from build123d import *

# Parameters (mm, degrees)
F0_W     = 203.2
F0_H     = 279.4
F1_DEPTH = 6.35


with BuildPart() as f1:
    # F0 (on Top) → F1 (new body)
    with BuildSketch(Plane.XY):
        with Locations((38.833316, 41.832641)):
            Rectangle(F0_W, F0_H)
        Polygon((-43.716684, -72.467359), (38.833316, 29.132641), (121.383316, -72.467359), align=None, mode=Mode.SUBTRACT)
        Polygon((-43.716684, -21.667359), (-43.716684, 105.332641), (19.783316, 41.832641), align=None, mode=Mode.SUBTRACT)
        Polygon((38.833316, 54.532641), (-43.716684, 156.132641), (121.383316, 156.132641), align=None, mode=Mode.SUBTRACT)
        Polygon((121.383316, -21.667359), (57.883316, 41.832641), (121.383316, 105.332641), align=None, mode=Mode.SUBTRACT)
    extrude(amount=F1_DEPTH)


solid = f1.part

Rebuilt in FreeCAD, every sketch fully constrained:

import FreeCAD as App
import Part
import Sketcher

V = App.Vector
Q = App.Units.Quantity

doc = App.newDocument("Part")
body = doc.addObject("PartDesign::Body", "Body")

# Sketch on XY plane
sketch1 = doc.addObject("Sketcher::SketchObject", "Sketch")
body.addObject(sketch1)
sketch1.AttachmentSupport = (doc.XY_Plane, [""])
sketch1.MapMode = "FlatFace"
sketch1.addGeometry([
    Part.LineSegment(V(-63, 182, 0), V(-63, -98, 0)),  # 0
    Part.LineSegment(V(-63, -98, 0), V(140, -98, 0)),  # 1
    Part.LineSegment(V(140, -98, 0), V(140, 182, 0)),  # 2
    Part.LineSegment(V(140, 182, 0), V(-63, 182, 0)),  # 3
    Part.LineSegment(V(121, -72, 0), V(-44, -72, 0)),  # 4
    Part.LineSegment(V(-44, -72, 0), V(39, 29, 0)),  # 5
    Part.LineSegment(V(39, 29, 0), V(121, -72, 0)),  # 6
    Part.LineSegment(V(20, 42, 0), V(-44, -22, 0)),  # 7
    Part.LineSegment(V(-44, -22, 0), V(-44, 105, 0)),  # 8
    Part.LineSegment(V(-44, 105, 0), V(20, 42, 0)),  # 9
    Part.LineSegment(V(121, 105, 0), V(121, -22, 0)),  # 10
    Part.LineSegment(V(121, -22, 0), V(58, 42, 0)),  # 11
    Part.LineSegment(V(58, 42, 0), V(121, 105, 0)),  # 12
    Part.LineSegment(V(121, 156, 0), V(39, 55, 0)),  # 13
    Part.LineSegment(V(39, 55, 0), V(-44, 156, 0)),  # 14
    Part.LineSegment(V(-44, 156, 0), V(121, 156, 0)),  # 15
], False)
sketch1.addConstraint([
    Sketcher.Constraint("Coincident", 0, 2, 1, 1),
    Sketcher.Constraint("Coincident", 1, 2, 2, 1),
    Sketcher.Constraint("Coincident", 2, 2, 3, 1),
    Sketcher.Constraint("Coincident", 3, 2, 0, 1),
    Sketcher.Constraint("Coincident", 4, 2, 5, 1),
    Sketcher.Constraint("Coincident", 5, 2, 6, 1),
    Sketcher.Constraint("Coincident", 6, 2, 4, 1),
    Sketcher.Constraint("Coincident", 7, 2, 8, 1),
    Sketcher.Constraint("Coincident", 8, 2, 9, 1),
    Sketcher.Constraint("Coincident", 9, 2, 7, 1),
    Sketcher.Constraint("Coincident", 10, 2, 11, 1),
    Sketcher.Constraint("Coincident", 11, 2, 12, 1),
    Sketcher.Constraint("Coincident", 12, 2, 10, 1),
    Sketcher.Constraint("Coincident", 13, 2, 14, 1),
    Sketcher.Constraint("Coincident", 14, 2, 15, 1),
    Sketcher.Constraint("Coincident", 15, 2, 13, 1),
    Sketcher.Constraint("Vertical", 0),
    Sketcher.Constraint("Horizontal", 1),
    Sketcher.Constraint("Vertical", 2),
    Sketcher.Constraint("Horizontal", 3),
    Sketcher.Constraint("Horizontal", 4),
    Sketcher.Constraint("Vertical", 8),
    Sketcher.Constraint("Vertical", 10),
    Sketcher.Constraint("Horizontal", 15),
    Sketcher.Constraint("Perpendicular", 7, 9),
    Sketcher.Constraint("Parallel", 9, 11),
    Sketcher.Constraint("Perpendicular", 11, 12),
    Sketcher.Constraint("Parallel", 5, 13),
    Sketcher.Constraint("Parallel", 6, 14),
    Sketcher.Constraint("Horizontal", 7, 2, 10, 2),
    Sketcher.Constraint("Horizontal", 9, 2, 11, 2),
    Sketcher.Constraint("Horizontal", 8, 2, 12, 2),
    Sketcher.Constraint("Vertical", 4, 2, 7, 2),
    Sketcher.Constraint("Vertical", 6, 2, 10, 2),
    Sketcher.Constraint("Vertical", 5, 2, 13, 2),
    Sketcher.Constraint("Vertical", 8, 2, 14, 2),
    Sketcher.Constraint("Vertical", 12, 2, 15, 2),
    Sketcher.Constraint("DistanceX", 1, 1, 1, 2, Q("8 in")),
    Sketcher.Constraint("DistanceY", 0, 2, 0, 1, Q("11 in")),
    Sketcher.Constraint("DistanceY", 8, 1, 8, 2, Q("5 in")),
    Sketcher.Constraint("DistanceX", 4, 2, 4, 1, Q("6.5 in")),
    Sketcher.Constraint("DistanceY", 0, 2, 4, 2, Q("1 in")),
    Sketcher.Constraint("DistanceY", 4, 2, 5, 2, Q("4 in")),
    Sketcher.Constraint("DistanceX", 0, 2, 5, 2, Q("4 in")),
    Sketcher.Constraint("DistanceY", 4, 2, 7, 2, Q("2 in")),
    Sketcher.Constraint("DistanceY", 5, 2, 13, 2, Q("1 in")),
    Sketcher.Constraint("DistanceY", 0, 2, -1, 1, 97.867359),
    Sketcher.Constraint("DistanceX", 0, 2, -1, 1, 62.766684),
])
pad1 = doc.addObject("PartDesign::Pad", "Pad")
body.addObject(pad1)
pad1.Profile = sketch1
pad1.Length = Q("0.25 in")

doc.recompute()
